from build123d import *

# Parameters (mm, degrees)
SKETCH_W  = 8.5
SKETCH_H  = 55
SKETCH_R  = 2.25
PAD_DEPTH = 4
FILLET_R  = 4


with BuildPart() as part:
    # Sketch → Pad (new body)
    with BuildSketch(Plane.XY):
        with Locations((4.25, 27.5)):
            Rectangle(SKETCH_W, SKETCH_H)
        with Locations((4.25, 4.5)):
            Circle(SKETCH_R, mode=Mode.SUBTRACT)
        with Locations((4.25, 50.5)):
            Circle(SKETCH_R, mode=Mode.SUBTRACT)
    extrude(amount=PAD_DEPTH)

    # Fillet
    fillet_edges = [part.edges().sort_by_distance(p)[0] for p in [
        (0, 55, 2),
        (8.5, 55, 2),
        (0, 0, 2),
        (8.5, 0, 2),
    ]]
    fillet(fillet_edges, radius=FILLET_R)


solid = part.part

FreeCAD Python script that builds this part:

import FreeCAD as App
import Part
import Sketcher
from FreeCAD import Vector


def edges_at(feature, points):
    """Names of the edges that pass closest to the given points."""
    edges = feature.Shape.Edges
    near = lambda p: min(range(len(edges)), key=lambda i: edges[i].distToShape(Part.Vertex(*p))[0])
    return sorted({f"Edge{near(p) + 1}" for p in points})


def add_polygon(sketch, points):
    """Adds a closed chain of lines whose ends are joined by coincident constraints."""
    first, n = sketch.GeometryCount, len(points)
    for a, b in zip(points, points[1:] + points[:1]):
        sketch.addGeometry(Part.LineSegment(App.Vector(*a, 0), App.Vector(*b, 0)), False)
    for i in range(n):
        sketch.addConstraint(Sketcher.Constraint("Coincident", first + i, 2, first + (i + 1) % n, 1))

doc = App.newDocument("Part")
body = doc.addObject("PartDesign::Body", "Body")

# Sketch on XY plane
sketch1 = doc.addObject("Sketcher::SketchObject", "Sketch")
body.addObject(sketch1)
sketch1.AttachmentSupport = (doc.XY_Plane, [""])
sketch1.MapMode = "FlatFace"
add_polygon(sketch1, [(0, 55), (0, 0), (8.5, 0), (8.5, 55)])  # lines 0-3
sketch1.addGeometry(Part.Circle(Vector(4.2, 4.5, 0), Vector(0, 0, 1), 2.2), False)  # 4
sketch1.addGeometry(Part.Circle(Vector(4.2, 50.5, 0), Vector(0, 0, 1), 2.2), False)  # 5
sketch1.addConstraint([
    Sketcher.Constraint("Vertical", 0),
    Sketcher.Constraint("Horizontal", 1),
    Sketcher.Constraint("Vertical", 2),
    Sketcher.Constraint("Horizontal", 3),
    Sketcher.Constraint("Coincident", 0, 2, -1, 1),
    Sketcher.Constraint("Equal", 4, 5),
    Sketcher.Constraint("Vertical", 4, 3, 5, 3),
    Sketcher.Constraint("Diameter", 4, 4.5),
    Sketcher.Constraint("DistanceY", 0, 2, 0, 1, 55.0),
    Sketcher.Constraint("DistanceX", 1, 1, 1, 2, 8.5),
    Sketcher.Constraint("DistanceY", 4, 3, 5, 3, 46.0),
    Sketcher.Constraint("DistanceY", -1, 1, 4, 3, 4.5),
    Sketcher.Constraint("DistanceX", -1, 1, 4, 3, 4.25),
])
pad1 = doc.addObject("PartDesign::Pad", "Pad")
body.addObject(pad1)
pad1.Profile = sketch1
pad1.Length = 4
doc.recompute()

fillet = doc.addObject("PartDesign::Fillet", "Fillet")
body.addObject(fillet)
fillet.Base = (pad1, edges_at(pad1, [
    (0, 55, 2),
    (8.5, 55, 2),
    (0, 0, 2),
    (8.5, 0, 2),
]))
fillet.Radius = 4

doc.recompute()
